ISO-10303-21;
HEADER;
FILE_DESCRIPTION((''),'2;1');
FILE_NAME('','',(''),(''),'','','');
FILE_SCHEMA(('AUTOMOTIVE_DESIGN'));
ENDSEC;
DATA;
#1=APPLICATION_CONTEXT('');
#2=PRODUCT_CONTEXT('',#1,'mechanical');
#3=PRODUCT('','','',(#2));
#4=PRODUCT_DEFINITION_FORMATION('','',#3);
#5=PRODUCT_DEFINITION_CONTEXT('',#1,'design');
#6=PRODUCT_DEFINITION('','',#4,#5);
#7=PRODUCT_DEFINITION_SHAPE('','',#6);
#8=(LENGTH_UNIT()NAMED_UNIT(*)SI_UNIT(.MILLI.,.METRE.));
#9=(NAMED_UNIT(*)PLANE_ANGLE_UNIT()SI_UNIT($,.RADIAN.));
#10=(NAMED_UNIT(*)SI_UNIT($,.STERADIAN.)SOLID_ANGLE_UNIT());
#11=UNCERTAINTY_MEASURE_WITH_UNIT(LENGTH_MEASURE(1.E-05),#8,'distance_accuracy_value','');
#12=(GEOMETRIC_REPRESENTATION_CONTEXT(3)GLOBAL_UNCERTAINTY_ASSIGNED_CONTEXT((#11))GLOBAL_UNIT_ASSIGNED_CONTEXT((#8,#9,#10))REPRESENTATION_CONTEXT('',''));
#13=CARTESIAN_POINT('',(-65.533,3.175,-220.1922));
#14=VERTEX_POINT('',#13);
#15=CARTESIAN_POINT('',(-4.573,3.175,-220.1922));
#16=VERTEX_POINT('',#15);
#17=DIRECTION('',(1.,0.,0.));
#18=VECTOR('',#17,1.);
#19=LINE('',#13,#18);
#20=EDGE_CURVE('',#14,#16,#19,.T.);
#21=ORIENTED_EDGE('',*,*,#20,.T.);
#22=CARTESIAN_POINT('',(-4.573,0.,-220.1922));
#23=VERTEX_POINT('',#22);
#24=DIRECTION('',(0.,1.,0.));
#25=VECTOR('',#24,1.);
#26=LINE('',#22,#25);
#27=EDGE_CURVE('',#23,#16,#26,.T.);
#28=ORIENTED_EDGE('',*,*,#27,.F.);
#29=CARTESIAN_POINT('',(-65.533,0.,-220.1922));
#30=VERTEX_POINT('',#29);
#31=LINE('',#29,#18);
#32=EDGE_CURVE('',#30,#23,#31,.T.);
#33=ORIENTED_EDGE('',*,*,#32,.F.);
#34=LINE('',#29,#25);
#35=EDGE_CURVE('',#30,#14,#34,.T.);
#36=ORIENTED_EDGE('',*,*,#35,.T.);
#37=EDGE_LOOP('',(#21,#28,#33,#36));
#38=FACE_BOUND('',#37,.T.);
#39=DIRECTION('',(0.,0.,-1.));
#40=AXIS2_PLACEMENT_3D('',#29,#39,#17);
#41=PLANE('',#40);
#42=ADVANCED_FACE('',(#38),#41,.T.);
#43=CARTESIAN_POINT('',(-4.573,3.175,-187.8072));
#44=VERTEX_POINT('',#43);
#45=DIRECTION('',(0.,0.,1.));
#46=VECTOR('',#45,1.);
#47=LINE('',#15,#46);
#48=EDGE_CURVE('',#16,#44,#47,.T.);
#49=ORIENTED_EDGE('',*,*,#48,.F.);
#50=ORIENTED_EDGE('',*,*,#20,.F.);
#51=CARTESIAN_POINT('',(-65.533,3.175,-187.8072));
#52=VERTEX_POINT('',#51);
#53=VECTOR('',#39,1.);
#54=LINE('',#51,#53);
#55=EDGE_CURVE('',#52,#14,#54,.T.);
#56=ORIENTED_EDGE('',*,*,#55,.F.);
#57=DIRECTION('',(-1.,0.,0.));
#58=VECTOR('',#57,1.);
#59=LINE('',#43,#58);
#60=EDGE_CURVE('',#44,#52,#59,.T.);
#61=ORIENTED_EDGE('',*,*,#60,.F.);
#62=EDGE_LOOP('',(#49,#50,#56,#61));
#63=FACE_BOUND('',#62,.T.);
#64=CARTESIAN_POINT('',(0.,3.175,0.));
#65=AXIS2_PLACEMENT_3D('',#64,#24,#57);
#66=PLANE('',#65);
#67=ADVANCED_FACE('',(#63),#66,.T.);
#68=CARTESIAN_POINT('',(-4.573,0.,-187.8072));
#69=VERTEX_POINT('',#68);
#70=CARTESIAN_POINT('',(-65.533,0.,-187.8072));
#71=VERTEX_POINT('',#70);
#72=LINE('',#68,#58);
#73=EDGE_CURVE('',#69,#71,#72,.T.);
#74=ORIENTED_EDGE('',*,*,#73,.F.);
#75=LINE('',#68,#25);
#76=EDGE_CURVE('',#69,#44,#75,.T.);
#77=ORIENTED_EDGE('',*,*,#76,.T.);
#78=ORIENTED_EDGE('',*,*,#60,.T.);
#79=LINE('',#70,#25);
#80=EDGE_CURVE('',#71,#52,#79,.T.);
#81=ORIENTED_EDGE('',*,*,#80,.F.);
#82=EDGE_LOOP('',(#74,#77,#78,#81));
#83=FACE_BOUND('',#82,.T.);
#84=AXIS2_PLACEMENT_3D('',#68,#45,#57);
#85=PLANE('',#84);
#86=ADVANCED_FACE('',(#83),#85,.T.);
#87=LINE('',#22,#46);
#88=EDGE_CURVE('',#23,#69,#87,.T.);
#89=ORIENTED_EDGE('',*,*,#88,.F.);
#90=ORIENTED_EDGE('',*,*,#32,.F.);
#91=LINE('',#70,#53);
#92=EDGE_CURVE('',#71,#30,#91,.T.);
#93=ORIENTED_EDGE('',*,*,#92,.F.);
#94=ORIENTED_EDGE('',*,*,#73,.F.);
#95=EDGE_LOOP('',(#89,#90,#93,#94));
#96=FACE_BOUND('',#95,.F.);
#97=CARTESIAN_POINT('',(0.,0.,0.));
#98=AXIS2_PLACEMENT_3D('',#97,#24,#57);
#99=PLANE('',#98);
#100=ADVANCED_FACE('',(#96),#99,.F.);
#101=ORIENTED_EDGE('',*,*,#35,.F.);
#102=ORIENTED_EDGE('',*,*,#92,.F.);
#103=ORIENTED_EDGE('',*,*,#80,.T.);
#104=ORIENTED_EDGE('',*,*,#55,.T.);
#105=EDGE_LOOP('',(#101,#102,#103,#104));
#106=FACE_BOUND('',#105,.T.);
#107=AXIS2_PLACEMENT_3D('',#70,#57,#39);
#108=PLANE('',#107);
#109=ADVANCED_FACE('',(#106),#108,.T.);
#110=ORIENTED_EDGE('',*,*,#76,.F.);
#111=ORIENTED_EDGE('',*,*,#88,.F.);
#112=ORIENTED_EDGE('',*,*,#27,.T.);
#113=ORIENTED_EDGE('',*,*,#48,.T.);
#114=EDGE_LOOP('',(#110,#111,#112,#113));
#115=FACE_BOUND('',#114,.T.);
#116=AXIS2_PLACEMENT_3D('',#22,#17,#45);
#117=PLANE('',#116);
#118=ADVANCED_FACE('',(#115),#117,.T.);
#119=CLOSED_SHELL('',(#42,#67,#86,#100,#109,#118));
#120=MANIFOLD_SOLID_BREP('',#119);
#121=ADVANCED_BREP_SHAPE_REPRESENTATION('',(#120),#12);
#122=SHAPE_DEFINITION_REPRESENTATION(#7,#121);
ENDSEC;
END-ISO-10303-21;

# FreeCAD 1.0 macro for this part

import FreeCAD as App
import Part
import Sketcher

V = App.Vector
Q = App.Units.Quantity


def add_polygon(sketch, points):
    """Adds a closed chain of lines whose ends are joined by coincident constraints."""
    first, n = sketch.GeometryCount, len(points)
    for a, b in zip(points, points[1:] + points[:1]):
        sketch.addGeometry(Part.LineSegment(App.Vector(*a, 0), App.Vector(*b, 0)), False)
    for i in range(n):
        sketch.addConstraint(Sketcher.Constraint("Coincident", first + i, 2, first + (i + 1) % n, 1))

doc = App.newDocument("Part")
body = doc.addObject("PartDesign::Body", "Body")

sketch1 = body.newObject("Sketcher::SketchObject", "Sketch")
sketch1.AttachmentSupport = (doc.getObject("XZ_Plane"), [""])
sketch1.MapMode = "FlatFace"
add_polygon(sketch1, [(-66, -188), (-5, -188), (-5, -220), (-66, -220)])
sketch1.addConstraint(Sketcher.Constraint("Horizontal", 0))
sketch1.addConstraint(Sketcher.Constraint("Vertical", 1))
sketch1.addConstraint(Sketcher.Constraint("Horizontal", 2))
sketch1.addConstraint(Sketcher.Constraint("Vertical", 3))
sketch1.addConstraint(Sketcher.Constraint("DistanceX", 0, 1, 0, 2, Q("2.4 in")))
sketch1.addConstraint(Sketcher.Constraint("DistanceY", 1, 2, 1, 1, Q("1.275 in")))
sketch1.addConstraint(Sketcher.Constraint("DistanceX", 0, 2, -1, 1, 4.573))
sketch1.addConstraint(Sketcher.Constraint("DistanceY", 0, 2, -1, 1, 187.8072))
pad1 = body.newObject("PartDesign::Pad", "Pad")
pad1.Profile = sketch1
pad1.Length = Q("0.125 in")
pad1.Reversed = True

doc.recompute()
